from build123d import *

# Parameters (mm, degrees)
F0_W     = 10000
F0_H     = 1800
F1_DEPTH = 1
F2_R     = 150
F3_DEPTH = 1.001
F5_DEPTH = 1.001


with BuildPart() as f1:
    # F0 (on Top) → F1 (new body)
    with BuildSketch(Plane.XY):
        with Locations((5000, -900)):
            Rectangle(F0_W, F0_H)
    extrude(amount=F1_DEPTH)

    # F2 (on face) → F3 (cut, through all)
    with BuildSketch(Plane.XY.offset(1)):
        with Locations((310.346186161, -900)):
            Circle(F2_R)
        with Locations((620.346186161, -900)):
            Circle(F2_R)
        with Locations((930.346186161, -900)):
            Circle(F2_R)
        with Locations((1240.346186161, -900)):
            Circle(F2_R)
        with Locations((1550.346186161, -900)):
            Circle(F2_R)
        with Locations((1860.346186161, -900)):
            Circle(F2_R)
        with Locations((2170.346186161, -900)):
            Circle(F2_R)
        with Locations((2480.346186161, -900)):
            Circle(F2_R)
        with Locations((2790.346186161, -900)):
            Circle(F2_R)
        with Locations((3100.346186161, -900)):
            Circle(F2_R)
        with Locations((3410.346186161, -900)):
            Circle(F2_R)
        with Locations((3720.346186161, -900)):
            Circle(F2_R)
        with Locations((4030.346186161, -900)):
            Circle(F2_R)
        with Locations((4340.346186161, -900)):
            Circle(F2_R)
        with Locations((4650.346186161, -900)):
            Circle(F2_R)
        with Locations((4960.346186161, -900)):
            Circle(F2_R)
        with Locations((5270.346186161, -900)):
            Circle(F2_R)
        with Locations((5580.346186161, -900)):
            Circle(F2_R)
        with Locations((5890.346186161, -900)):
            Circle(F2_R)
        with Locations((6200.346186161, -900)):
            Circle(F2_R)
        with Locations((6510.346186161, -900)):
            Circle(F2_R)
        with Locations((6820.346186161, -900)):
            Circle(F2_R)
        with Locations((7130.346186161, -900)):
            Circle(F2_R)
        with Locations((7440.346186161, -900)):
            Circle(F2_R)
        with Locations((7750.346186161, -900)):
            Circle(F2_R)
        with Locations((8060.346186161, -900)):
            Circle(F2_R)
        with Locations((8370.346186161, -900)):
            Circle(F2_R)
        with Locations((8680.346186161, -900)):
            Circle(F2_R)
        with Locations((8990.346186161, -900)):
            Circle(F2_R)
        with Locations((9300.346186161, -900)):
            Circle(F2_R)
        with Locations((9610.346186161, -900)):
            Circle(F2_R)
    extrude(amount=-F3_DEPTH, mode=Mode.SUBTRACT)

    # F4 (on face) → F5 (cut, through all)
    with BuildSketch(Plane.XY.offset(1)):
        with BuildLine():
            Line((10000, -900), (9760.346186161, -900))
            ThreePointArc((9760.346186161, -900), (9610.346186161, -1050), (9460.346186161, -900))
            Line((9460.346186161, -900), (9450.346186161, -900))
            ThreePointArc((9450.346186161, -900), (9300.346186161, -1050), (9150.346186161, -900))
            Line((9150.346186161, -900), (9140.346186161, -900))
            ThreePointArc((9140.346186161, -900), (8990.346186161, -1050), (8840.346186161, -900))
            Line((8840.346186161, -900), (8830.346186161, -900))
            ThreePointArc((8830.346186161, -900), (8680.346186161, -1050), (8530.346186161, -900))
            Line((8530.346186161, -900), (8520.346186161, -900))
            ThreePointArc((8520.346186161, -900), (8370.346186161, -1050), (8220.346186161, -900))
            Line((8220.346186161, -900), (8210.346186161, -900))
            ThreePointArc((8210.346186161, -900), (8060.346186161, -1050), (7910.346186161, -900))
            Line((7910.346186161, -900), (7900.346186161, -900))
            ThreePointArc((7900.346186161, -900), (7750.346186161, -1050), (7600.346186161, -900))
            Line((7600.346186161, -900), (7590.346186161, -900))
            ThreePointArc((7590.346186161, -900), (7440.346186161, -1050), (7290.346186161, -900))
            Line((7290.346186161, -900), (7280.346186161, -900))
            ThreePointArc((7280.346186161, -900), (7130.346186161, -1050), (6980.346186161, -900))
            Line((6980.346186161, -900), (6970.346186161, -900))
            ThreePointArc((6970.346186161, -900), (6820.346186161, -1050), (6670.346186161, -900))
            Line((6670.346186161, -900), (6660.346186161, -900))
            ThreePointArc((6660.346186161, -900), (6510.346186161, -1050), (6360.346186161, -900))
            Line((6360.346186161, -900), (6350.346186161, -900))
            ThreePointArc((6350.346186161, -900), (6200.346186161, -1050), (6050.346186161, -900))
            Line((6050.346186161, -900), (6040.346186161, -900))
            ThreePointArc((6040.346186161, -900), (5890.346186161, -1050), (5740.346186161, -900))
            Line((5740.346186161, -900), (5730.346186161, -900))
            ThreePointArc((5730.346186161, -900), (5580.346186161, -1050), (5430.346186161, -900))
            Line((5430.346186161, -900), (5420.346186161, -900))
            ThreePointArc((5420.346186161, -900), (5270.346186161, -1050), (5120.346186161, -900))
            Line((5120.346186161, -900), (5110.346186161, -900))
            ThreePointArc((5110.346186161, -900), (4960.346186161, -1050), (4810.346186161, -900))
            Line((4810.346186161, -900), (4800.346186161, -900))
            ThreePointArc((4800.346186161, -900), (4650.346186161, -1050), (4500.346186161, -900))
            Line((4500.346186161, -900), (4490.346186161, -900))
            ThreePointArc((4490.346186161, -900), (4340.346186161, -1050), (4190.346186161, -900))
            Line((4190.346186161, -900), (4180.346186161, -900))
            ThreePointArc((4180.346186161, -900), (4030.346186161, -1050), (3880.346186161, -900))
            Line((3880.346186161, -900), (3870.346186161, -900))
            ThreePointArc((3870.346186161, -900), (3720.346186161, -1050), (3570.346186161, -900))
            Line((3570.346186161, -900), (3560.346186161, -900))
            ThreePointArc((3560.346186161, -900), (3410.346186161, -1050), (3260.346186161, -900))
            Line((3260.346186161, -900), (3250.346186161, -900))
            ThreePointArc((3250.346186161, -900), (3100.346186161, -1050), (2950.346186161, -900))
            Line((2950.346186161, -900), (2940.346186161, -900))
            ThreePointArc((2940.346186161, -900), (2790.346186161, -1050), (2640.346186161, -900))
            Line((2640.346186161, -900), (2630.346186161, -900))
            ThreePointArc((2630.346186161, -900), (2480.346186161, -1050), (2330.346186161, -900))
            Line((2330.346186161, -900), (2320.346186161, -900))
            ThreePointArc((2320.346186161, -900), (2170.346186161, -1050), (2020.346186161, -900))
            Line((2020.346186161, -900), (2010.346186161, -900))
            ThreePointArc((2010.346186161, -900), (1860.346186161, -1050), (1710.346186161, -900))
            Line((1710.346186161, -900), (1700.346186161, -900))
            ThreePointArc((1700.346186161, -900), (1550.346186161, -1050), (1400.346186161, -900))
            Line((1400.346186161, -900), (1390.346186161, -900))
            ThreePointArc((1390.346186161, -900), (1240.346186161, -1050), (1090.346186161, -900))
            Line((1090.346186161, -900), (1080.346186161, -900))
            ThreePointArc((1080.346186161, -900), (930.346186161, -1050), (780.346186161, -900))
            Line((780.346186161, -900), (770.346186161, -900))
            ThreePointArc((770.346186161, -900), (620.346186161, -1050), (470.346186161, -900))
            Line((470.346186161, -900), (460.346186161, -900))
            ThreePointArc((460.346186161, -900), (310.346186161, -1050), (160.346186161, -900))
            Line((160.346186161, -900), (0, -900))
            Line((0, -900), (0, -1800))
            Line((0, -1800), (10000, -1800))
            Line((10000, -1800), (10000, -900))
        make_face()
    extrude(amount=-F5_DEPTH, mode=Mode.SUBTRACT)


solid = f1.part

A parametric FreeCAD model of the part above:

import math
import FreeCAD as App
import Part
import Sketcher
from FreeCAD import Vector

doc = App.newDocument("Part")
body = doc.addObject("PartDesign::Body", "Body")

# Sketch on XY plane
sketch1 = body.newObject("Sketcher::SketchObject", "Sketch")
sketch1.AttachmentSupport = (doc.getObject("XY_Plane"), [""])
sketch1.MapMode = "FlatFace"
sketch1.addGeometry(Part.LineSegment(Vector(0, 0, 0), Vector(0, -1800, 0)), False)
sketch1.addGeometry(Part.LineSegment(Vector(0, -1800, 0), Vector(10000, -1800, 0)), False)
sketch1.addGeometry(Part.LineSegment(Vector(10000, -1800, 0), Vector(10000, 0, 0)), False)
sketch1.addGeometry(Part.LineSegment(Vector(10000, 0, 0), Vector(0, 0, 0)), False)
sketch1.addConstraint(Sketcher.Constraint("Coincident", 0, 2, 1, 1))
sketch1.addConstraint(Sketcher.Constraint("Coincident", 1, 2, 2, 1))
sketch1.addConstraint(Sketcher.Constraint("Coincident", 2, 2, 3, 1))
sketch1.addConstraint(Sketcher.Constraint("Coincident", 3, 2, 0, 1))
sketch1.addConstraint(Sketcher.Constraint("Vertical", 0))
sketch1.addConstraint(Sketcher.Constraint("Horizontal", 1))
sketch1.addConstraint(Sketcher.Constraint("Vertical", 2))
sketch1.addConstraint(Sketcher.Constraint("Horizontal", 3))
sketch1.addConstraint(Sketcher.Constraint("Coincident", 3, 2, -1, 1))
sketch1.addConstraint(Sketcher.Constraint("DistanceX", 1, 1, 1, 2, 10000.0))
sketch1.addConstraint(Sketcher.Constraint("DistanceY", 0, 2, 0, 1, 1800.0))
pad1 = body.newObject("PartDesign::Pad", "Pad")
pad1.Profile = sketch1
pad1.Length = 1

# Sketch on XY plane
sketch2 = body.newObject("Sketcher::SketchObject", "Sketch001")
sketch2.AttachmentSupport = (doc.getObject("XY_Plane"), [""])
sketch2.MapMode = "FlatFace"
sketch2.AttachmentOffset = App.Placement(Vector(0, 0, 1), App.Rotation())
sketch2.addGeometry(Part.Circle(Vector(310, -900, 0), Vector(0, 0, 1), 150), False)
sketch2.addGeometry(Part.Circle(Vector(620, -900, 0), Vector(0, 0, 1), 150), False)
sketch2.addGeometry(Part.Circle(Vector(930, -900, 0), Vector(0, 0, 1), 150), False)
sketch2.addGeometry(Part.Circle(Vector(1240, -900, 0), Vector(0, 0, 1), 150), False)
sketch2.addGeometry(Part.Circle(Vector(1550, -900, 0), Vector(0, 0, 1), 150), False)
sketch2.addGeometry(Part.Circle(Vector(1860, -900, 0), Vector(0, 0, 1), 150), False)
sketch2.addGeometry(Part.Circle(Vector(2170, -900, 0), Vector(0, 0, 1), 150), False)
sketch2.addGeometry(Part.Circle(Vector(2480, -900, 0), Vector(0, 0, 1), 150), False)
sketch2.addGeometry(Part.Circle(Vector(2790, -900, 0), Vector(0, 0, 1), 150), False)
sketch2.addGeometry(Part.Circle(Vector(3100, -900, 0), Vector(0, 0, 1), 150), False)
sketch2.addGeometry(Part.Circle(Vector(3410, -900, 0), Vector(0, 0, 1), 150), False)
sketch2.addGeometry(Part.Circle(Vector(3720, -900, 0), Vector(0, 0, 1), 150), False)
sketch2.addGeometry(Part.Circle(Vector(4030, -900, 0), Vector(0, 0, 1), 150), False)
sketch2.addGeometry(Part.Circle(Vector(4340, -900, 0), Vector(0, 0, 1), 150), False)
sketch2.addGeometry(Part.Circle(Vector(4650, -900, 0), Vector(0, 0, 1), 150), False)
sketch2.addGeometry(Part.Circle(Vector(4960, -900, 0), Vector(0, 0, 1), 150), False)
sketch2.addGeometry(Part.Circle(Vector(5270, -900, 0), Vector(0, 0, 1), 150), False)
sketch2.addGeometry(Part.Circle(Vector(5580, -900, 0), Vector(0, 0, 1), 150), False)
sketch2.addGeometry(Part.Circle(Vector(5890, -900, 0), Vector(0, 0, 1), 150), False)
sketch2.addGeometry(Part.Circle(Vector(6200, -900, 0), Vector(0, 0, 1), 150), False)
sketch2.addGeometry(Part.Circle(Vector(6510, -900, 0), Vector(0, 0, 1), 150), False)
sketch2.addGeometry(Part.Circle(Vector(6820, -900, 0), Vector(0, 0, 1), 150), False)
sketch2.addGeometry(Part.Circle(Vector(7130, -900, 0), Vector(0, 0, 1), 150), False)
sketch2.addGeometry(Part.Circle(Vector(7440, -900, 0), Vector(0, 0, 1), 150), False)
sketch2.addGeometry(Part.Circle(Vector(7750, -900, 0), Vector(0, 0, 1), 150), False)
sketch2.addGeometry(Part.Circle(Vector(8060, -900, 0), Vector(0, 0, 1), 150), False)
sketch2.addGeometry(Part.Circle(Vector(8370, -900, 0), Vector(0, 0, 1), 150), False)
sketch2.addGeometry(Part.Circle(Vector(8680, -900, 0), Vector(0, 0, 1), 150), False)
sketch2.addGeometry(Part.Circle(Vector(8990, -900, 0), Vector(0, 0, 1), 150), False)
sketch2.addGeometry(Part.Circle(Vector(9300, -900, 0), Vector(0, 0, 1), 150), False)
sketch2.addGeometry(Part.Circle(Vector(9610, -900, 0), Vector(0, 0, 1), 150), False)
sketch2.addConstraint(Sketcher.Constraint("Equal", 0, 1))
sketch2.addConstraint(Sketcher.Constraint("Equal", 1, 2))
sketch2.addConstraint(Sketcher.Constraint("Equal", 2, 3))
sketch2.addConstraint(Sketcher.Constraint("Equal", 3, 4))
sketch2.addConstraint(Sketcher.Constraint("Equal", 4, 5))
sketch2.addConstraint(Sketcher.Constraint("Equal", 5, 6))
sketch2.addConstraint(Sketcher.Constraint("Equal", 6, 7))
sketch2.addConstraint(Sketcher.Constraint("Equal", 7, 8))
sketch2.addConstraint(Sketcher.Constraint("Equal", 8, 9))
sketch2.addConstraint(Sketcher.Constraint("Equal", 9, 10))
sketch2.addConstraint(Sketcher.Constraint("Equal", 10, 11))
sketch2.addConstraint(Sketcher.Constraint("Equal", 11, 12))
sketch2.addConstraint(Sketcher.Constraint("Equal", 12, 13))
sketch2.addConstraint(Sketcher.Constraint("Equal", 13, 14))
sketch2.addConstraint(Sketcher.Constraint("Equal", 14, 15))
sketch2.addConstraint(Sketcher.Constraint("Equal", 15, 16))
sketch2.addConstraint(Sketcher.Constraint("Equal", 16, 17))
sketch2.addConstraint(Sketcher.Constraint("Equal", 17, 18))
sketch2.addConstraint(Sketcher.Constraint("Equal", 18, 19))
sketch2.addConstraint(Sketcher.Constraint("Equal", 19, 20))
sketch2.addConstraint(Sketcher.Constraint("Equal", 20, 21))
sketch2.addConstraint(Sketcher.Constraint("Equal", 21, 22))
sketch2.addConstraint(Sketcher.Constraint("Equal", 22, 23))
sketch2.addConstraint(Sketcher.Constraint("Equal", 23, 24))
sketch2.addConstraint(Sketcher.Constraint("Equal", 24, 25))
sketch2.addConstraint(Sketcher.Constraint("Equal", 25, 26))
sketch2.addConstraint(Sketcher.Constraint("Equal", 26, 27))
sketch2.addConstraint(Sketcher.Constraint("Equal", 27, 28))
sketch2.addConstraint(Sketcher.Constraint("Equal", 28, 29))
sketch2.addConstraint(Sketcher.Constraint("Equal", 29, 30))
sketch2.addConstraint(Sketcher.Constraint("Horizontal", 0, 3, 1, 3))
sketch2.addConstraint(Sketcher.Constraint("Horizontal", 1, 3, 2, 3))
sketch2.addConstraint(Sketcher.Constraint("Horizontal", 2, 3, 3, 3))
sketch2.addConstraint(Sketcher.Constraint("Horizontal", 3, 3, 4, 3))
sketch2.addConstraint(Sketcher.Constraint("Horizontal", 4, 3, 5, 3))
sketch2.addConstraint(Sketcher.Constraint("Horizontal", 5, 3, 6, 3))
sketch2.addConstraint(Sketcher.Constraint("Horizontal", 6, 3, 7, 3))
sketch2.addConstraint(Sketcher.Constraint("Horizontal", 7, 3, 8, 3))
sketch2.addConstraint(Sketcher.Constraint("Horizontal", 8, 3, 9, 3))
sketch2.addConstraint(Sketcher.Constraint("Horizontal", 9, 3, 10, 3))
sketch2.addConstraint(Sketcher.Constraint("Horizontal", 10, 3, 11, 3))
sketch2.addConstraint(Sketcher.Constraint("Horizontal", 11, 3, 12, 3))
sketch2.addConstraint(Sketcher.Constraint("Horizontal", 12, 3, 13, 3))
sketch2.addConstraint(Sketcher.Constraint("Horizontal", 13, 3, 14, 3))
sketch2.addConstraint(Sketcher.Constraint("Horizontal", 14, 3, 15, 3))
sketch2.addConstraint(Sketcher.Constraint("Horizontal", 15, 3, 16, 3))
sketch2.addConstraint(Sketcher.Constraint("Horizontal", 16, 3, 17, 3))
sketch2.addConstraint(Sketcher.Constraint("Horizontal", 17, 3, 18, 3))
sketch2.addConstraint(Sketcher.Constraint("Horizontal", 18, 3, 19, 3))
sketch2.addConstraint(Sketcher.Constraint("Horizontal", 19, 3, 20, 3))
sketch2.addConstraint(Sketcher.Constraint("Horizontal", 20, 3, 21, 3))
sketch2.addConstraint(Sketcher.Constraint("Horizontal", 21, 3, 22, 3))
sketch2.addConstraint(Sketcher.Constraint("Horizontal", 22, 3, 23, 3))
sketch2.addConstraint(Sketcher.Constraint("Horizontal", 23, 3, 24, 3))
sketch2.addConstraint(Sketcher.Constraint("Horizontal", 24, 3, 25, 3))
sketch2.addConstraint(Sketcher.Constraint("Horizontal", 25, 3, 26, 3))
sketch2.addConstraint(Sketcher.Constraint("Horizontal", 26, 3, 27, 3))
sketch2.addConstraint(Sketcher.Constraint("Horizontal", 27, 3, 28, 3))
sketch2.addConstraint(Sketcher.Constraint("Horizontal", 28, 3, 29, 3))
sketch2.addConstraint(Sketcher.Constraint("Horizontal", 29, 3, 30, 3))
sketch2.addConstraint(Sketcher.Constraint("Diameter", 0, 300.0))
sketch2.addConstraint(Sketcher.Constraint("DistanceY", 0, 3, -1, 1, 900.0))
sketch2.addConstraint(Sketcher.Constraint("DistanceX", 0, 3, 1, 3, 310.0))
sketch2.addConstraint(Sketcher.Constraint("DistanceX", 1, 3, 2, 3, 310.0))
sketch2.addConstraint(Sketcher.Constraint("DistanceX", 2, 3, 3, 3, 310.0))
sketch2.addConstraint(Sketcher.Constraint("DistanceX", 3, 3, 4, 3, 310.0))
sketch2.addConstraint(Sketcher.Constraint("DistanceX", 4, 3, 5, 3, 310.0))
sketch2.addConstraint(Sketcher.Constraint("DistanceX", 5, 3, 6, 3, 310.0))
sketch2.addConstraint(Sketcher.Constraint("DistanceX", 6, 3, 7, 3, 310.0))
sketch2.addConstraint(Sketcher.Constraint("DistanceX", 7, 3, 8, 3, 310.0))
sketch2.addConstraint(Sketcher.Constraint("DistanceX", 8, 3, 9, 3, 310.0))
sketch2.addConstraint(Sketcher.Constraint("DistanceX", 9, 3, 10, 3, 310.0))
sketch2.addConstraint(Sketcher.Constraint("DistanceX", 10, 3, 11, 3, 310.0))
sketch2.addConstraint(Sketcher.Constraint("DistanceX", 11, 3, 12, 3, 310.0))
sketch2.addConstraint(Sketcher.Constraint("DistanceX", 12, 3, 13, 3, 310.0))
sketch2.addConstraint(Sketcher.Constraint("DistanceX", 13, 3, 14, 3, 310.0))
sketch2.addConstraint(Sketcher.Constraint("DistanceX", 14, 3, 15, 3, 310.0))
sketch2.addConstraint(Sketcher.Constraint("DistanceX", 15, 3, 16, 3, 310.0))
sketch2.addConstraint(Sketcher.Constraint("DistanceX", 16, 3, 17, 3, 310.0))
sketch2.addConstraint(Sketcher.Constraint("DistanceX", 17, 3, 18, 3, 310.0))
sketch2.addConstraint(Sketcher.Constraint("DistanceX", 18, 3, 19, 3, 310.0))
sketch2.addConstraint(Sketcher.Constraint("DistanceX", 19, 3, 20, 3, 310.0))
sketch2.addConstraint(Sketcher.Constraint("DistanceX", 20, 3, 21, 3, 310.0))
sketch2.addConstraint(Sketcher.Constraint("DistanceX", 21, 3, 22, 3, 310.0))
sketch2.addConstraint(Sketcher.Constraint("DistanceX", 22, 3, 23, 3, 310.0))
sketch2.addConstraint(Sketcher.Constraint("DistanceX", 23, 3, 24, 3, 310.0))
sketch2.addConstraint(Sketcher.Constraint("DistanceX", 24, 3, 25, 3, 310.0))
sketch2.addConstraint(Sketcher.Constraint("DistanceX", 25, 3, 26, 3, 310.0))
sketch2.addConstraint(Sketcher.Constraint("DistanceX", 26, 3, 27, 3, 310.0))
sketch2.addConstraint(Sketcher.Constraint("DistanceX", 27, 3, 28, 3, 310.0))
sketch2.addConstraint(Sketcher.Constraint("DistanceX", 28, 3, 29, 3, 310.0))
sketch2.addConstraint(Sketcher.Constraint("DistanceX", 29, 3, 30, 3, 310.0))
sketch2.addConstraint(Sketcher.Constraint("DistanceX", -1, 1, 0, 3, 310.346186))
pocket1 = body.newObject("PartDesign::Pocket", "Pocket")
pocket1.Profile = sketch2
pocket1.Type = "ThroughAll"

# Sketch on XY plane
sketch3 = body.newObject("Sketcher::SketchObject", "Sketch002")
sketch3.AttachmentSupport = (doc.getObject("XY_Plane"), [""])
sketch3.MapMode = "FlatFace"
sketch3.AttachmentOffset = App.Placement(Vector(0, 0, 1), App.Rotation())
sketch3.addGeometry(Part.LineSegment(Vector(10000, -900, 0), Vector(9760, -900, 0)), False)
sketch3.addGeometry(Part.ArcOfCircle(Part.Circle(Vector(9610, -900, 0), Vector(0, 0, 1), 150), math.radians(180), math.radians(360)), False)
sketch3.addGeometry(Part.LineSegment(Vector(9460, -900, 0), Vector(9450, -900, 0)), False)
sketch3.addGeometry(Part.ArcOfCircle(Part.Circle(Vector(9300, -900, 0), Vector(0, 0, 1), 150), math.radians(180), math.radians(360)), False)
sketch3.addGeometry(Part.LineSegment(Vector(9150, -900, 0), Vector(9140, -900, 0)), False)
sketch3.addGeometry(Part.ArcOfCircle(Part.Circle(Vector(8990, -900, 0), Vector(0, 0, 1), 150), math.radians(180), math.radians(360)), False)
sketch3.addGeometry(Part.LineSegment(Vector(8840, -900, 0), Vector(8830, -900, 0)), False)
sketch3.addGeometry(Part.ArcOfCircle(Part.Circle(Vector(8680, -900, 0), Vector(0, 0, 1), 150), math.radians(180), math.radians(360)), False)
sketch3.addGeometry(Part.LineSegment(Vector(8530, -900, 0), Vector(8520, -900, 0)), False)
sketch3.addGeometry(Part.ArcOfCircle(Part.Circle(Vector(8370, -900, 0), Vector(0, 0, 1), 150), math.radians(180), math.radians(360)), False)
sketch3.addGeometry(Part.LineSegment(Vector(8220, -900, 0), Vector(8210, -900, 0)), False)
sketch3.addGeometry(Part.ArcOfCircle(Part.Circle(Vector(8060, -900, 0), Vector(0, 0, 1), 150), math.radians(180), math.radians(360)), False)
sketch3.addGeometry(Part.LineSegment(Vector(7910, -900, 0), Vector(7900, -900, 0)), False)
sketch3.addGeometry(Part.ArcOfCircle(Part.Circle(Vector(7750, -900, 0), Vector(0, 0, 1), 150), math.radians(180), math.radians(360)), False)
sketch3.addGeometry(Part.LineSegment(Vector(7600, -900, 0), Vector(7590, -900, 0)), False)
sketch3.addGeometry(Part.ArcOfCircle(Part.Circle(Vector(7440, -900, 0), Vector(0, 0, 1), 150), math.radians(180), math.radians(360)), False)
sketch3.addGeometry(Part.LineSegment(Vector(7290, -900, 0), Vector(7280, -900, 0)), False)
sketch3.addGeometry(Part.ArcOfCircle(Part.Circle(Vector(7130, -900, 0), Vector(0, 0, 1), 150), math.radians(180), math.radians(360)), False)
sketch3.addGeometry(Part.LineSegment(Vector(6980, -900, 0), Vector(6970, -900, 0)), False)
sketch3.addGeometry(Part.ArcOfCircle(Part.Circle(Vector(6820, -900, 0), Vector(0, 0, 1), 150), math.radians(180), math.radians(360)), False)
sketch3.addGeometry(Part.LineSegment(Vector(6670, -900, 0), Vector(6660, -900, 0)), False)
sketch3.addGeometry(Part.ArcOfCircle(Part.Circle(Vector(6510, -900, 0), Vector(0, 0, 1), 150), math.radians(180), math.radians(360)), False)
sketch3.addGeometry(Part.LineSegment(Vector(6360, -900, 0), Vector(6350, -900, 0)), False)
sketch3.addGeometry(Part.ArcOfCircle(Part.Circle(Vector(6200, -900, 0), Vector(0, 0, 1), 150), math.radians(180), math.radians(360)), False)
sketch3.addGeometry(Part.LineSegment(Vector(6050, -900, 0), Vector(6040, -900, 0)), False)
sketch3.addGeometry(Part.ArcOfCircle(Part.Circle(Vector(5890, -900, 0), Vector(0, 0, 1), 150), math.radians(180), math.radians(360)), False)
sketch3.addGeometry(Part.LineSegment(Vector(5740, -900, 0), Vector(5730, -900, 0)), False)
sketch3.addGeometry(Part.ArcOfCircle(Part.Circle(Vector(5580, -900, 0), Vector(0, 0, 1), 150), math.radians(180), math.radians(360)), False)
sketch3.addGeometry(Part.LineSegment(Vector(5430, -900, 0), Vector(5420, -900, 0)), False)
sketch3.addGeometry(Part.ArcOfCircle(Part.Circle(Vector(5270, -900, 0), Vector(0, 0, 1), 150), math.radians(180), math.radians(360)), False)
sketch3.addGeometry(Part.LineSegment(Vector(5120, -900, 0), Vector(5110, -900, 0)), False)
sketch3.addGeometry(Part.ArcOfCircle(Part.Circle(Vector(4960, -900, 0), Vector(0, 0, 1), 150), math.radians(180), math.radians(360)), False)
sketch3.addGeometry(Part.LineSegment(Vector(4810, -900, 0), Vector(4800, -900, 0)), False)
sketch3.addGeometry(Part.ArcOfCircle(Part.Circle(Vector(4650, -900, 0), Vector(0, 0, 1), 150), math.radians(180), math.radians(360)), False)
sketch3.addGeometry(Part.LineSegment(Vector(4500, -900, 0), Vector(4490, -900, 0)), False)
sketch3.addGeometry(Part.ArcOfCircle(Part.Circle(Vector(4340, -900, 0), Vector(0, 0, 1), 150), math.radians(180), math.radians(360)), False)
sketch3.addGeometry(Part.LineSegment(Vector(4190, -900, 0), Vector(4180, -900, 0)), False)
sketch3.addGeometry(Part.ArcOfCircle(Part.Circle(Vector(4030, -900, 0), Vector(0, 0, 1), 150), math.radians(180), math.radians(360)), False)
sketch3.addGeometry(Part.LineSegment(Vector(3880, -900, 0), Vector(3870, -900, 0)), False)
sketch3.addGeometry(Part.ArcOfCircle(Part.Circle(Vector(3720, -900, 0), Vector(0, 0, 1), 150), math.radians(180), math.radians(360)), False)
sketch3.addGeometry(Part.LineSegment(Vector(3570, -900, 0), Vector(3560, -900, 0)), False)
sketch3.addGeometry(Part.ArcOfCircle(Part.Circle(Vector(3410, -900, 0), Vector(0, 0, 1), 150), math.radians(180), math.radians(360)), False)
sketch3.addGeometry(Part.LineSegment(Vector(3260, -900, 0), Vector(3250, -900, 0)), False)
sketch3.addGeometry(Part.ArcOfCircle(Part.Circle(Vector(3100, -900, 0), Vector(0, 0, 1), 150), math.radians(180), math.radians(360)), False)
sketch3.addGeometry(Part.LineSegment(Vector(2950, -900, 0), Vector(2940, -900, 0)), False)
sketch3.addGeometry(Part.ArcOfCircle(Part.Circle(Vector(2790, -900, 0), Vector(0, 0, 1), 150), math.radians(180), math.radians(360)), False)
sketch3.addGeometry(Part.LineSegment(Vector(2640, -900, 0), Vector(2630, -900, 0)), False)
sketch3.addGeometry(Part.ArcOfCircle(Part.Circle(Vector(2480, -900, 0), Vector(0, 0, 1), 150), math.radians(180), math.radians(360)), False)
sketch3.addGeometry(Part.LineSegment(Vector(2330, -900, 0), Vector(2320, -900, 0)), False)
sketch3.addGeometry(Part.ArcOfCircle(Part.Circle(Vector(2170, -900, 0), Vector(0, 0, 1), 150), math.radians(180), math.radians(360)), False)
sketch3.addGeometry(Part.LineSegment(Vector(2020, -900, 0), Vector(2010, -900, 0)), False)
sketch3.addGeometry(Part.ArcOfCircle(Part.Circle(Vector(1860, -900, 0), Vector(0, 0, 1), 150), math.radians(180), math.radians(360)), False)
sketch3.addGeometry(Part.LineSegment(Vector(1710, -900, 0), Vector(1700, -900, 0)), False)
sketch3.addGeometry(Part.ArcOfCircle(Part.Circle(Vector(1550, -900, 0), Vector(0, 0, 1), 150), math.radians(180), math.radians(360)), False)
sketch3.addGeometry(Part.LineSegment(Vector(1400, -900, 0), Vector(1390, -900, 0)), False)
sketch3.addGeometry(Part.ArcOfCircle(Part.Circle(Vector(1240, -900, 0), Vector(0, 0, 1), 150), math.radians(180), math.radians(360)), False)
sketch3.addGeometry(Part.LineSegment(Vector(1090, -900, 0), Vector(1080, -900, 0)), False)
sketch3.addGeometry(Part.ArcOfCircle(Part.Circle(Vector(930, -900, 0), Vector(0, 0, 1), 150), math.radians(180), math.radians(360)), False)
sketch3.addGeometry(Part.LineSegment(Vector(780, -900, 0), Vector(770, -900, 0)), False)
sketch3.addGeometry(Part.ArcOfCircle(Part.Circle(Vector(620, -900, 0), Vector(0, 0, 1), 150), math.radians(180), math.radians(360)), False)
sketch3.addGeometry(Part.LineSegment(Vector(470, -900, 0), Vector(460, -900, 0)), False)
sketch3.addGeometry(Part.ArcOfCircle(Part.Circle(Vector(310, -900, 0), Vector(0, 0, 1), 150), math.radians(180), math.radians(360)), False)
sketch3.addGeometry(Part.LineSegment(Vector(160, -900, 0), Vector(0, -900, 0)), False)
sketch3.addGeometry(Part.LineSegment(Vector(0, -900, 0), Vector(0, -1800, 0)), False)
sketch3.addGeometry(Part.LineSegment(Vector(0, -1800, 0), Vector(10000, -1800, 0)), False)
sketch3.addGeometry(Part.LineSegment(Vector(10000, -1800, 0), Vector(10000, -900, 0)), False)
sketch3.addConstraint(Sketcher.Constraint("Coincident", 0, 2, 1, 2))
sketch3.addConstraint(Sketcher.Constraint("Coincident", 1, 1, 2, 1))
sketch3.addConstraint(Sketcher.Constraint("Coincident", 2, 2, 3, 2))
sketch3.addConstraint(Sketcher.Constraint("Coincident", 3, 1, 4, 1))
sketch3.addConstraint(Sketcher.Constraint("Coincident", 4, 2, 5, 2))
sketch3.addConstraint(Sketcher.Constraint("Coincident", 5, 1, 6, 1))
sketch3.addConstraint(Sketcher.Constraint("Coincident", 6, 2, 7, 2))
sketch3.addConstraint(Sketcher.Constraint("Coincident", 7, 1, 8, 1))
sketch3.addConstraint(Sketcher.Constraint("Coincident", 8, 2, 9, 2))
sketch3.addConstraint(Sketcher.Constraint("Coincident", 9, 1, 10, 1))
sketch3.addConstraint(Sketcher.Constraint("Coincident", 10, 2, 11, 2))
sketch3.addConstraint(Sketcher.Constraint("Coincident", 11, 1, 12, 1))
sketch3.addConstraint(Sketcher.Constraint("Coincident", 12, 2, 13, 2))
sketch3.addConstraint(Sketcher.Constraint("Coincident", 13, 1, 14, 1))
sketch3.addConstraint(Sketcher.Constraint("Coincident", 14, 2, 15, 2))
sketch3.addConstraint(Sketcher.Constraint("Coincident", 15, 1, 16, 1))
sketch3.addConstraint(Sketcher.Constraint("Coincident", 16, 2, 17, 2))
sketch3.addConstraint(Sketcher.Constraint("Coincident", 17, 1, 18, 1))
sketch3.addConstraint(Sketcher.Constraint("Coincident", 18, 2, 19, 2))
sketch3.addConstraint(Sketcher.Constraint("Coincident", 19, 1, 20, 1))
sketch3.addConstraint(Sketcher.Constraint("Coincident", 20, 2, 21, 2))
sketch3.addConstraint(Sketcher.Constraint("Coincident", 21, 1, 22, 1))
sketch3.addConstraint(Sketcher.Constraint("Coincident", 22, 2, 23, 2))
sketch3.addConstraint(Sketcher.Constraint("Coincident", 23, 1, 24, 1))
sketch3.addConstraint(Sketcher.Constraint("Coincident", 24, 2, 25, 2))
sketch3.addConstraint(Sketcher.Constraint("Coincident", 25, 1, 26, 1))
sketch3.addConstraint(Sketcher.Constraint("Coincident", 26, 2, 27, 2))
sketch3.addConstraint(Sketcher.Constraint("Coincident", 27, 1, 28, 1))
sketch3.addConstraint(Sketcher.Constraint("Coincident", 28, 2, 29, 2))
sketch3.addConstraint(Sketcher.Constraint("Coincident", 29, 1, 30, 1))
sketch3.addConstraint(Sketcher.Constraint("Coincident", 30, 2, 31, 2))
sketch3.addConstraint(Sketcher.Constraint("Coincident", 31, 1, 32, 1))
sketch3.addConstraint(Sketcher.Constraint("Coincident", 32, 2, 33, 2))
sketch3.addConstraint(Sketcher.Constraint("Coincident", 33, 1, 34, 1))
sketch3.addConstraint(Sketcher.Constraint("Coincident", 34, 2, 35, 2))
sketch3.addConstraint(Sketcher.Constraint("Coincident", 35, 1, 36, 1))
sketch3.addConstraint(Sketcher.Constraint("Coincident", 36, 2, 37, 2))
sketch3.addConstraint(Sketcher.Constraint("Coincident", 37, 1, 38, 1))
sketch3.addConstraint(Sketcher.Constraint("Coincident", 38, 2, 39, 2))
sketch3.addConstraint(Sketcher.Constraint("Coincident", 39, 1, 40, 1))
sketch3.addConstraint(Sketcher.Constraint("Coincident", 40, 2, 41, 2))
sketch3.addConstraint(Sketcher.Constraint("Coincident", 41, 1, 42, 1))
sketch3.addConstraint(Sketcher.Constraint("Coincident", 42, 2, 43, 2))
sketch3.addConstraint(Sketcher.Constraint("Coincident", 43, 1, 44, 1))
sketch3.addConstraint(Sketcher.Constraint("Coincident", 44, 2, 45, 2))
sketch3.addConstraint(Sketcher.Constraint("Coincident", 45, 1, 46, 1))
sketch3.addConstraint(Sketcher.Constraint("Coincident", 46, 2, 47, 2))
sketch3.addConstraint(Sketcher.Constraint("Coincident", 47, 1, 48, 1))
sketch3.addConstraint(Sketcher.Constraint("Coincident", 48, 2, 49, 2))
sketch3.addConstraint(Sketcher.Constraint("Coincident", 49, 1, 50, 1))
sketch3.addConstraint(Sketcher.Constraint("Coincident", 50, 2, 51, 2))
sketch3.addConstraint(Sketcher.Constraint("Coincident", 51, 1, 52, 1))
sketch3.addConstraint(Sketcher.Constraint("Coincident", 52, 2, 53, 2))
sketch3.addConstraint(Sketcher.Constraint("Coincident", 53, 1, 54, 1))
sketch3.addConstraint(Sketcher.Constraint("Coincident", 54, 2, 55, 2))
sketch3.addConstraint(Sketcher.Constraint("Coincident", 55, 1, 56, 1))
sketch3.addConstraint(Sketcher.Constraint("Coincident", 56, 2, 57, 2))
sketch3.addConstraint(Sketcher.Constraint("Coincident", 57, 1, 58, 1))
sketch3.addConstraint(Sketcher.Constraint("Coincident", 58, 2, 59, 2))
sketch3.addConstraint(Sketcher.Constraint("Coincident", 59, 1, 60, 1))
sketch3.addConstraint(Sketcher.Constraint("Coincident", 60, 2, 61, 2))
sketch3.addConstraint(Sketcher.Constraint("Coincident", 61, 1, 62, 1))
sketch3.addConstraint(Sketcher.Constraint("Coincident", 62, 2, 63, 1))
sketch3.addConstraint(Sketcher.Constraint("Coincident", 63, 2, 64, 1))
sketch3.addConstraint(Sketcher.Constraint("Coincident", 64, 2, 65, 1))
sketch3.addConstraint(Sketcher.Constraint("Coincident", 65, 2, 0, 1))
sketch3.addConstraint(Sketcher.Constraint("Horizontal", 0))
sketch3.addConstraint(Sketcher.Constraint("Horizontal", 2))
sketch3.addConstraint(Sketcher.Constraint("Horizontal", 4))
sketch3.addConstraint(Sketcher.Constraint("Horizontal", 6))
sketch3.addConstraint(Sketcher.Constraint("Horizontal", 8))
sketch3.addConstraint(Sketcher.Constraint("Horizontal", 10))
sketch3.addConstraint(Sketcher.Constraint("Horizontal", 12))
sketch3.addConstraint(Sketcher.Constraint("Horizontal", 14))
sketch3.addConstraint(Sketcher.Constraint("Horizontal", 16))
sketch3.addConstraint(Sketcher.Constraint("Horizontal", 18))
sketch3.addConstraint(Sketcher.Constraint("Horizontal", 20))
sketch3.addConstraint(Sketcher.Constraint("Horizontal", 22))
sketch3.addConstraint(Sketcher.Constraint("Horizontal", 24))
sketch3.addConstraint(Sketcher.Constraint("Horizontal", 26))
sketch3.addConstraint(Sketcher.Constraint("Horizontal", 28))
sketch3.addConstraint(Sketcher.Constraint("Horizontal", 30))
sketch3.addConstraint(Sketcher.Constraint("Horizontal", 32))
sketch3.addConstraint(Sketcher.Constraint("Horizontal", 34))
sketch3.addConstraint(Sketcher.Constraint("Horizontal", 36))
sketch3.addConstraint(Sketcher.Constraint("Horizontal", 38))
sketch3.addConstraint(Sketcher.Constraint("Horizontal", 40))
sketch3.addConstraint(Sketcher.Constraint("Horizontal", 42))
sketch3.addConstraint(Sketcher.Constraint("Horizontal", 44))
sketch3.addConstraint(Sketcher.Constraint("Horizontal", 46))
sketch3.addConstraint(Sketcher.Constraint("Horizontal", 48))
sketch3.addConstraint(Sketcher.Constraint("Horizontal", 50))
sketch3.addConstraint(Sketcher.Constraint("Horizontal", 52))
sketch3.addConstraint(Sketcher.Constraint("Horizontal", 54))
sketch3.addConstraint(Sketcher.Constraint("Horizontal", 56))
sketch3.addConstraint(Sketcher.Constraint("Horizontal", 58))
sketch3.addConstraint(Sketcher.Constraint("Horizontal", 60))
sketch3.addConstraint(Sketcher.Constraint("Horizontal", 62))
sketch3.addConstraint(Sketcher.Constraint("Vertical", 63))
sketch3.addConstraint(Sketcher.Constraint("Horizontal", 64))
sketch3.addConstraint(Sketcher.Constraint("Vertical", 65))
sketch3.addConstraint(Sketcher.Constraint("Equal", 1, 3))
sketch3.addConstraint(Sketcher.Constraint("Equal", 3, 5))
sketch3.addConstraint(Sketcher.Constraint("Equal", 5, 7))
sketch3.addConstraint(Sketcher.Constraint("Equal", 7, 9))
sketch3.addConstraint(Sketcher.Constraint("Equal", 9, 11))
sketch3.addConstraint(Sketcher.Constraint("Equal", 11, 13))
sketch3.addConstraint(Sketcher.Constraint("Equal", 13, 15))
sketch3.addConstraint(Sketcher.Constraint("Equal", 15, 17))
sketch3.addConstraint(Sketcher.Constraint("Equal", 17, 19))
sketch3.addConstraint(Sketcher.Constraint("Equal", 19, 21))
sketch3.addConstraint(Sketcher.Constraint("Equal", 21, 23))
sketch3.addConstraint(Sketcher.Constraint("Equal", 23, 25))
sketch3.addConstraint(Sketcher.Constraint("Equal", 25, 27))
sketch3.addConstraint(Sketcher.Constraint("Equal", 27, 29))
sketch3.addConstraint(Sketcher.Constraint("Equal", 29, 31))
sketch3.addConstraint(Sketcher.Constraint("Equal", 31, 33))
sketch3.addConstraint(Sketcher.Constraint("Equal", 33, 35))
sketch3.addConstraint(Sketcher.Constraint("Equal", 35, 37))
sketch3.addConstraint(Sketcher.Constraint("Equal", 37, 39))
sketch3.addConstraint(Sketcher.Constraint("Equal", 39, 41))
sketch3.addConstraint(Sketcher.Constraint("Equal", 41, 43))
sketch3.addConstraint(Sketcher.Constraint("Equal", 43, 45))
sketch3.addConstraint(Sketcher.Constraint("Equal", 45, 47))
sketch3.addConstraint(Sketcher.Constraint("Equal", 47, 49))
sketch3.addConstraint(Sketcher.Constraint("Equal", 49, 51))
sketch3.addConstraint(Sketcher.Constraint("Equal", 51, 53))
sketch3.addConstraint(Sketcher.Constraint("Equal", 53, 55))
sketch3.addConstraint(Sketcher.Constraint("Equal", 55, 57))
sketch3.addConstraint(Sketcher.Constraint("Equal", 57, 59))
sketch3.addConstraint(Sketcher.Constraint("Equal", 59, 61))
sketch3.addConstraint(Sketcher.Constraint("PointOnObject", 62, 2, -2))
sketch3.addConstraint(Sketcher.Constraint("Horizontal", 1, 3, 3, 3))
sketch3.addConstraint(Sketcher.Constraint("Horizontal", 3, 3, 5, 3))
sketch3.addConstraint(Sketcher.Constraint("Horizontal", 5, 3, 7, 3))
sketch3.addConstraint(Sketcher.Constraint("Horizontal", 7, 3, 9, 3))
sketch3.addConstraint(Sketcher.Constraint("Horizontal", 9, 3, 11, 3))
sketch3.addConstraint(Sketcher.Constraint("Horizontal", 11, 3, 13, 3))
sketch3.addConstraint(Sketcher.Constraint("Horizontal", 13, 3, 15, 3))
sketch3.addConstraint(Sketcher.Constraint("Horizontal", 15, 3, 17, 3))
sketch3.addConstraint(Sketcher.Constraint("Horizontal", 17, 3, 19, 3))
sketch3.addConstraint(Sketcher.Constraint("Horizontal", 19, 3, 21, 3))
sketch3.addConstraint(Sketcher.Constraint("Horizontal", 21, 3, 23, 3))
sketch3.addConstraint(Sketcher.Constraint("Horizontal", 23, 3, 25, 3))
sketch3.addConstraint(Sketcher.Constraint("Horizontal", 25, 3, 27, 3))
sketch3.addConstraint(Sketcher.Constraint("Horizontal", 27, 3, 29, 3))
sketch3.addConstraint(Sketcher.Constraint("Horizontal", 29, 3, 31, 3))
sketch3.addConstraint(Sketcher.Constraint("Horizontal", 31, 3, 33, 3))
sketch3.addConstraint(Sketcher.Constraint("Horizontal", 33, 3, 35, 3))
sketch3.addConstraint(Sketcher.Constraint("Horizontal", 35, 3, 37, 3))
sketch3.addConstraint(Sketcher.Constraint("Horizontal", 37, 3, 39, 3))
sketch3.addConstraint(Sketcher.Constraint("Horizontal", 39, 3, 41, 3))
sketch3.addConstraint(Sketcher.Constraint("Horizontal", 41, 3, 43, 3))
sketch3.addConstraint(Sketcher.Constraint("Horizontal", 43, 3, 45, 3))
sketch3.addConstraint(Sketcher.Constraint("Horizontal", 45, 3, 47, 3))
sketch3.addConstraint(Sketcher.Constraint("Horizontal", 47, 3, 49, 3))
sketch3.addConstraint(Sketcher.Constraint("Horizontal", 49, 3, 51, 3))
sketch3.addConstraint(Sketcher.Constraint("Horizontal", 51, 3, 53, 3))
sketch3.addConstraint(Sketcher.Constraint("Horizontal", 53, 3, 55, 3))
sketch3.addConstraint(Sketcher.Constraint("Horizontal", 55, 3, 57, 3))
sketch3.addConstraint(Sketcher.Constraint("Horizontal", 57, 3, 59, 3))
sketch3.addConstraint(Sketcher.Constraint("Horizontal", 59, 3, 61, 3))
sketch3.addConstraint(Sketcher.Constraint("Horizontal", 61, 3, 0, 2))
sketch3.addConstraint(Sketcher.Constraint("Horizontal", 0, 2, 1, 1))
sketch3.addConstraint(Sketcher.Constraint("Horizontal", 2, 2, 3, 1))
sketch3.addConstraint(Sketcher.Constraint("Horizontal", 4, 2, 5, 1))
sketch3.addConstraint(Sketcher.Constraint("Horizontal", 6, 2, 7, 1))
sketch3.addConstraint(Sketcher.Constraint("Horizontal", 8, 2, 9, 1))
sketch3.addConstraint(Sketcher.Constraint("Horizontal", 10, 2, 11, 1))
sketch3.addConstraint(Sketcher.Constraint("Horizontal", 12, 2, 13, 1))
sketch3.addConstraint(Sketcher.Constraint("Horizontal", 14, 2, 15, 1))
sketch3.addConstraint(Sketcher.Constraint("Horizontal", 16, 2, 17, 1))
sketch3.addConstraint(Sketcher.Constraint("Horizontal", 18, 2, 19, 1))
sketch3.addConstraint(Sketcher.Constraint("Horizontal", 20, 2, 21, 1))
sketch3.addConstraint(Sketcher.Constraint("Horizontal", 22, 2, 23, 1))
sketch3.addConstraint(Sketcher.Constraint("Horizontal", 24, 2, 25, 1))
sketch3.addConstraint(Sketcher.Constraint("Horizontal", 26, 2, 27, 1))
sketch3.addConstraint(Sketcher.Constraint("Horizontal", 28, 2, 29, 1))
sketch3.addConstraint(Sketcher.Constraint("Horizontal", 30, 2, 31, 1))
sketch3.addConstraint(Sketcher.Constraint("Horizontal", 32, 2, 33, 1))
sketch3.addConstraint(Sketcher.Constraint("Horizontal", 34, 2, 35, 1))
sketch3.addConstraint(Sketcher.Constraint("Horizontal", 36, 2, 37, 1))
sketch3.addConstraint(Sketcher.Constraint("Horizontal", 38, 2, 39, 1))
sketch3.addConstraint(Sketcher.Constraint("Horizontal", 40, 2, 41, 1))
sketch3.addConstraint(Sketcher.Constraint("Horizontal", 42, 2, 43, 1))
sketch3.addConstraint(Sketcher.Constraint("Horizontal", 44, 2, 45, 1))
sketch3.addConstraint(Sketcher.Constraint("Horizontal", 46, 2, 47, 1))
sketch3.addConstraint(Sketcher.Constraint("Horizontal", 48, 2, 49, 1))
sketch3.addConstraint(Sketcher.Constraint("Horizontal", 50, 2, 51, 1))
sketch3.addConstraint(Sketcher.Constraint("Horizontal", 52, 2, 53, 1))
sketch3.addConstraint(Sketcher.Constraint("Horizontal", 54, 2, 55, 1))
sketch3.addConstraint(Sketcher.Constraint("Horizontal", 56, 2, 57, 1))
sketch3.addConstraint(Sketcher.Constraint("Horizontal", 58, 2, 59, 1))
sketch3.addConstraint(Sketcher.Constraint("Horizontal", 60, 2, 61, 1))
sketch3.addConstraint(Sketcher.Constraint("Equal", 2, 4))
sketch3.addConstraint(Sketcher.Constraint("Equal", 4, 6))
sketch3.addConstraint(Sketcher.Constraint("Equal", 6, 8))
sketch3.addConstraint(Sketcher.Constraint("Equal", 8, 10))
sketch3.addConstraint(Sketcher.Constraint("Equal", 10, 12))
sketch3.addConstraint(Sketcher.Constraint("Equal", 12, 14))
sketch3.addConstraint(Sketcher.Constraint("Equal", 14, 16))
sketch3.addConstraint(Sketcher.Constraint("Equal", 16, 18))
sketch3.addConstraint(Sketcher.Constraint("Equal", 18, 20))
sketch3.addConstraint(Sketcher.Constraint("Equal", 20, 22))
sketch3.addConstraint(Sketcher.Constraint("Equal", 22, 24))
sketch3.addConstraint(Sketcher.Constraint("Equal", 24, 26))
sketch3.addConstraint(Sketcher.Constraint("Equal", 26, 28))
sketch3.addConstraint(Sketcher.Constraint("Equal", 28, 30))
sketch3.addConstraint(Sketcher.Constraint("Equal", 30, 32))
sketch3.addConstraint(Sketcher.Constraint("Equal", 32, 34))
sketch3.addConstraint(Sketcher.Constraint("Equal", 34, 36))
sketch3.addConstraint(Sketcher.Constraint("Equal", 36, 38))
sketch3.addConstraint(Sketcher.Constraint("Equal", 38, 40))
sketch3.addConstraint(Sketcher.Constraint("Equal", 40, 42))
sketch3.addConstraint(Sketcher.Constraint("Equal", 42, 44))
sketch3.addConstraint(Sketcher.Constraint("Equal", 44, 46))
sketch3.addConstraint(Sketcher.Constraint("Equal", 46, 48))
sketch3.addConstraint(Sketcher.Constraint("Equal", 48, 50))
sketch3.addConstraint(Sketcher.Constraint("Equal", 50, 52))
sketch3.addConstraint(Sketcher.Constraint("Equal", 52, 54))
sketch3.addConstraint(Sketcher.Constraint("Equal", 54, 56))
sketch3.addConstraint(Sketcher.Constraint("Equal", 56, 58))
sketch3.addConstraint(Sketcher.Constraint("Equal", 58, 60))
sketch3.addConstraint(Sketcher.Constraint("Radius", 1, 150.0))
sketch3.addConstraint(Sketcher.Constraint("DistanceX", 2, 2, 2, 1, 10.0))
sketch3.addConstraint(Sketcher.Constraint("DistanceX", 64, 1, 64, 2, 10000.0))
sketch3.addConstraint(Sketcher.Constraint("DistanceY", 63, 2, 63, 1, 900.0))
sketch3.addConstraint(Sketcher.Constraint("DistanceY", 1, 3, -1, 1, 900.0))
sketch3.addConstraint(Sketcher.Constraint("DistanceX", 0, 2, 0, 1, 239.653814))
pocket2 = body.newObject("PartDesign::Pocket", "Pocket001")
pocket2.Profile = sketch3
pocket2.Type = "ThroughAll"

doc.recompute()
